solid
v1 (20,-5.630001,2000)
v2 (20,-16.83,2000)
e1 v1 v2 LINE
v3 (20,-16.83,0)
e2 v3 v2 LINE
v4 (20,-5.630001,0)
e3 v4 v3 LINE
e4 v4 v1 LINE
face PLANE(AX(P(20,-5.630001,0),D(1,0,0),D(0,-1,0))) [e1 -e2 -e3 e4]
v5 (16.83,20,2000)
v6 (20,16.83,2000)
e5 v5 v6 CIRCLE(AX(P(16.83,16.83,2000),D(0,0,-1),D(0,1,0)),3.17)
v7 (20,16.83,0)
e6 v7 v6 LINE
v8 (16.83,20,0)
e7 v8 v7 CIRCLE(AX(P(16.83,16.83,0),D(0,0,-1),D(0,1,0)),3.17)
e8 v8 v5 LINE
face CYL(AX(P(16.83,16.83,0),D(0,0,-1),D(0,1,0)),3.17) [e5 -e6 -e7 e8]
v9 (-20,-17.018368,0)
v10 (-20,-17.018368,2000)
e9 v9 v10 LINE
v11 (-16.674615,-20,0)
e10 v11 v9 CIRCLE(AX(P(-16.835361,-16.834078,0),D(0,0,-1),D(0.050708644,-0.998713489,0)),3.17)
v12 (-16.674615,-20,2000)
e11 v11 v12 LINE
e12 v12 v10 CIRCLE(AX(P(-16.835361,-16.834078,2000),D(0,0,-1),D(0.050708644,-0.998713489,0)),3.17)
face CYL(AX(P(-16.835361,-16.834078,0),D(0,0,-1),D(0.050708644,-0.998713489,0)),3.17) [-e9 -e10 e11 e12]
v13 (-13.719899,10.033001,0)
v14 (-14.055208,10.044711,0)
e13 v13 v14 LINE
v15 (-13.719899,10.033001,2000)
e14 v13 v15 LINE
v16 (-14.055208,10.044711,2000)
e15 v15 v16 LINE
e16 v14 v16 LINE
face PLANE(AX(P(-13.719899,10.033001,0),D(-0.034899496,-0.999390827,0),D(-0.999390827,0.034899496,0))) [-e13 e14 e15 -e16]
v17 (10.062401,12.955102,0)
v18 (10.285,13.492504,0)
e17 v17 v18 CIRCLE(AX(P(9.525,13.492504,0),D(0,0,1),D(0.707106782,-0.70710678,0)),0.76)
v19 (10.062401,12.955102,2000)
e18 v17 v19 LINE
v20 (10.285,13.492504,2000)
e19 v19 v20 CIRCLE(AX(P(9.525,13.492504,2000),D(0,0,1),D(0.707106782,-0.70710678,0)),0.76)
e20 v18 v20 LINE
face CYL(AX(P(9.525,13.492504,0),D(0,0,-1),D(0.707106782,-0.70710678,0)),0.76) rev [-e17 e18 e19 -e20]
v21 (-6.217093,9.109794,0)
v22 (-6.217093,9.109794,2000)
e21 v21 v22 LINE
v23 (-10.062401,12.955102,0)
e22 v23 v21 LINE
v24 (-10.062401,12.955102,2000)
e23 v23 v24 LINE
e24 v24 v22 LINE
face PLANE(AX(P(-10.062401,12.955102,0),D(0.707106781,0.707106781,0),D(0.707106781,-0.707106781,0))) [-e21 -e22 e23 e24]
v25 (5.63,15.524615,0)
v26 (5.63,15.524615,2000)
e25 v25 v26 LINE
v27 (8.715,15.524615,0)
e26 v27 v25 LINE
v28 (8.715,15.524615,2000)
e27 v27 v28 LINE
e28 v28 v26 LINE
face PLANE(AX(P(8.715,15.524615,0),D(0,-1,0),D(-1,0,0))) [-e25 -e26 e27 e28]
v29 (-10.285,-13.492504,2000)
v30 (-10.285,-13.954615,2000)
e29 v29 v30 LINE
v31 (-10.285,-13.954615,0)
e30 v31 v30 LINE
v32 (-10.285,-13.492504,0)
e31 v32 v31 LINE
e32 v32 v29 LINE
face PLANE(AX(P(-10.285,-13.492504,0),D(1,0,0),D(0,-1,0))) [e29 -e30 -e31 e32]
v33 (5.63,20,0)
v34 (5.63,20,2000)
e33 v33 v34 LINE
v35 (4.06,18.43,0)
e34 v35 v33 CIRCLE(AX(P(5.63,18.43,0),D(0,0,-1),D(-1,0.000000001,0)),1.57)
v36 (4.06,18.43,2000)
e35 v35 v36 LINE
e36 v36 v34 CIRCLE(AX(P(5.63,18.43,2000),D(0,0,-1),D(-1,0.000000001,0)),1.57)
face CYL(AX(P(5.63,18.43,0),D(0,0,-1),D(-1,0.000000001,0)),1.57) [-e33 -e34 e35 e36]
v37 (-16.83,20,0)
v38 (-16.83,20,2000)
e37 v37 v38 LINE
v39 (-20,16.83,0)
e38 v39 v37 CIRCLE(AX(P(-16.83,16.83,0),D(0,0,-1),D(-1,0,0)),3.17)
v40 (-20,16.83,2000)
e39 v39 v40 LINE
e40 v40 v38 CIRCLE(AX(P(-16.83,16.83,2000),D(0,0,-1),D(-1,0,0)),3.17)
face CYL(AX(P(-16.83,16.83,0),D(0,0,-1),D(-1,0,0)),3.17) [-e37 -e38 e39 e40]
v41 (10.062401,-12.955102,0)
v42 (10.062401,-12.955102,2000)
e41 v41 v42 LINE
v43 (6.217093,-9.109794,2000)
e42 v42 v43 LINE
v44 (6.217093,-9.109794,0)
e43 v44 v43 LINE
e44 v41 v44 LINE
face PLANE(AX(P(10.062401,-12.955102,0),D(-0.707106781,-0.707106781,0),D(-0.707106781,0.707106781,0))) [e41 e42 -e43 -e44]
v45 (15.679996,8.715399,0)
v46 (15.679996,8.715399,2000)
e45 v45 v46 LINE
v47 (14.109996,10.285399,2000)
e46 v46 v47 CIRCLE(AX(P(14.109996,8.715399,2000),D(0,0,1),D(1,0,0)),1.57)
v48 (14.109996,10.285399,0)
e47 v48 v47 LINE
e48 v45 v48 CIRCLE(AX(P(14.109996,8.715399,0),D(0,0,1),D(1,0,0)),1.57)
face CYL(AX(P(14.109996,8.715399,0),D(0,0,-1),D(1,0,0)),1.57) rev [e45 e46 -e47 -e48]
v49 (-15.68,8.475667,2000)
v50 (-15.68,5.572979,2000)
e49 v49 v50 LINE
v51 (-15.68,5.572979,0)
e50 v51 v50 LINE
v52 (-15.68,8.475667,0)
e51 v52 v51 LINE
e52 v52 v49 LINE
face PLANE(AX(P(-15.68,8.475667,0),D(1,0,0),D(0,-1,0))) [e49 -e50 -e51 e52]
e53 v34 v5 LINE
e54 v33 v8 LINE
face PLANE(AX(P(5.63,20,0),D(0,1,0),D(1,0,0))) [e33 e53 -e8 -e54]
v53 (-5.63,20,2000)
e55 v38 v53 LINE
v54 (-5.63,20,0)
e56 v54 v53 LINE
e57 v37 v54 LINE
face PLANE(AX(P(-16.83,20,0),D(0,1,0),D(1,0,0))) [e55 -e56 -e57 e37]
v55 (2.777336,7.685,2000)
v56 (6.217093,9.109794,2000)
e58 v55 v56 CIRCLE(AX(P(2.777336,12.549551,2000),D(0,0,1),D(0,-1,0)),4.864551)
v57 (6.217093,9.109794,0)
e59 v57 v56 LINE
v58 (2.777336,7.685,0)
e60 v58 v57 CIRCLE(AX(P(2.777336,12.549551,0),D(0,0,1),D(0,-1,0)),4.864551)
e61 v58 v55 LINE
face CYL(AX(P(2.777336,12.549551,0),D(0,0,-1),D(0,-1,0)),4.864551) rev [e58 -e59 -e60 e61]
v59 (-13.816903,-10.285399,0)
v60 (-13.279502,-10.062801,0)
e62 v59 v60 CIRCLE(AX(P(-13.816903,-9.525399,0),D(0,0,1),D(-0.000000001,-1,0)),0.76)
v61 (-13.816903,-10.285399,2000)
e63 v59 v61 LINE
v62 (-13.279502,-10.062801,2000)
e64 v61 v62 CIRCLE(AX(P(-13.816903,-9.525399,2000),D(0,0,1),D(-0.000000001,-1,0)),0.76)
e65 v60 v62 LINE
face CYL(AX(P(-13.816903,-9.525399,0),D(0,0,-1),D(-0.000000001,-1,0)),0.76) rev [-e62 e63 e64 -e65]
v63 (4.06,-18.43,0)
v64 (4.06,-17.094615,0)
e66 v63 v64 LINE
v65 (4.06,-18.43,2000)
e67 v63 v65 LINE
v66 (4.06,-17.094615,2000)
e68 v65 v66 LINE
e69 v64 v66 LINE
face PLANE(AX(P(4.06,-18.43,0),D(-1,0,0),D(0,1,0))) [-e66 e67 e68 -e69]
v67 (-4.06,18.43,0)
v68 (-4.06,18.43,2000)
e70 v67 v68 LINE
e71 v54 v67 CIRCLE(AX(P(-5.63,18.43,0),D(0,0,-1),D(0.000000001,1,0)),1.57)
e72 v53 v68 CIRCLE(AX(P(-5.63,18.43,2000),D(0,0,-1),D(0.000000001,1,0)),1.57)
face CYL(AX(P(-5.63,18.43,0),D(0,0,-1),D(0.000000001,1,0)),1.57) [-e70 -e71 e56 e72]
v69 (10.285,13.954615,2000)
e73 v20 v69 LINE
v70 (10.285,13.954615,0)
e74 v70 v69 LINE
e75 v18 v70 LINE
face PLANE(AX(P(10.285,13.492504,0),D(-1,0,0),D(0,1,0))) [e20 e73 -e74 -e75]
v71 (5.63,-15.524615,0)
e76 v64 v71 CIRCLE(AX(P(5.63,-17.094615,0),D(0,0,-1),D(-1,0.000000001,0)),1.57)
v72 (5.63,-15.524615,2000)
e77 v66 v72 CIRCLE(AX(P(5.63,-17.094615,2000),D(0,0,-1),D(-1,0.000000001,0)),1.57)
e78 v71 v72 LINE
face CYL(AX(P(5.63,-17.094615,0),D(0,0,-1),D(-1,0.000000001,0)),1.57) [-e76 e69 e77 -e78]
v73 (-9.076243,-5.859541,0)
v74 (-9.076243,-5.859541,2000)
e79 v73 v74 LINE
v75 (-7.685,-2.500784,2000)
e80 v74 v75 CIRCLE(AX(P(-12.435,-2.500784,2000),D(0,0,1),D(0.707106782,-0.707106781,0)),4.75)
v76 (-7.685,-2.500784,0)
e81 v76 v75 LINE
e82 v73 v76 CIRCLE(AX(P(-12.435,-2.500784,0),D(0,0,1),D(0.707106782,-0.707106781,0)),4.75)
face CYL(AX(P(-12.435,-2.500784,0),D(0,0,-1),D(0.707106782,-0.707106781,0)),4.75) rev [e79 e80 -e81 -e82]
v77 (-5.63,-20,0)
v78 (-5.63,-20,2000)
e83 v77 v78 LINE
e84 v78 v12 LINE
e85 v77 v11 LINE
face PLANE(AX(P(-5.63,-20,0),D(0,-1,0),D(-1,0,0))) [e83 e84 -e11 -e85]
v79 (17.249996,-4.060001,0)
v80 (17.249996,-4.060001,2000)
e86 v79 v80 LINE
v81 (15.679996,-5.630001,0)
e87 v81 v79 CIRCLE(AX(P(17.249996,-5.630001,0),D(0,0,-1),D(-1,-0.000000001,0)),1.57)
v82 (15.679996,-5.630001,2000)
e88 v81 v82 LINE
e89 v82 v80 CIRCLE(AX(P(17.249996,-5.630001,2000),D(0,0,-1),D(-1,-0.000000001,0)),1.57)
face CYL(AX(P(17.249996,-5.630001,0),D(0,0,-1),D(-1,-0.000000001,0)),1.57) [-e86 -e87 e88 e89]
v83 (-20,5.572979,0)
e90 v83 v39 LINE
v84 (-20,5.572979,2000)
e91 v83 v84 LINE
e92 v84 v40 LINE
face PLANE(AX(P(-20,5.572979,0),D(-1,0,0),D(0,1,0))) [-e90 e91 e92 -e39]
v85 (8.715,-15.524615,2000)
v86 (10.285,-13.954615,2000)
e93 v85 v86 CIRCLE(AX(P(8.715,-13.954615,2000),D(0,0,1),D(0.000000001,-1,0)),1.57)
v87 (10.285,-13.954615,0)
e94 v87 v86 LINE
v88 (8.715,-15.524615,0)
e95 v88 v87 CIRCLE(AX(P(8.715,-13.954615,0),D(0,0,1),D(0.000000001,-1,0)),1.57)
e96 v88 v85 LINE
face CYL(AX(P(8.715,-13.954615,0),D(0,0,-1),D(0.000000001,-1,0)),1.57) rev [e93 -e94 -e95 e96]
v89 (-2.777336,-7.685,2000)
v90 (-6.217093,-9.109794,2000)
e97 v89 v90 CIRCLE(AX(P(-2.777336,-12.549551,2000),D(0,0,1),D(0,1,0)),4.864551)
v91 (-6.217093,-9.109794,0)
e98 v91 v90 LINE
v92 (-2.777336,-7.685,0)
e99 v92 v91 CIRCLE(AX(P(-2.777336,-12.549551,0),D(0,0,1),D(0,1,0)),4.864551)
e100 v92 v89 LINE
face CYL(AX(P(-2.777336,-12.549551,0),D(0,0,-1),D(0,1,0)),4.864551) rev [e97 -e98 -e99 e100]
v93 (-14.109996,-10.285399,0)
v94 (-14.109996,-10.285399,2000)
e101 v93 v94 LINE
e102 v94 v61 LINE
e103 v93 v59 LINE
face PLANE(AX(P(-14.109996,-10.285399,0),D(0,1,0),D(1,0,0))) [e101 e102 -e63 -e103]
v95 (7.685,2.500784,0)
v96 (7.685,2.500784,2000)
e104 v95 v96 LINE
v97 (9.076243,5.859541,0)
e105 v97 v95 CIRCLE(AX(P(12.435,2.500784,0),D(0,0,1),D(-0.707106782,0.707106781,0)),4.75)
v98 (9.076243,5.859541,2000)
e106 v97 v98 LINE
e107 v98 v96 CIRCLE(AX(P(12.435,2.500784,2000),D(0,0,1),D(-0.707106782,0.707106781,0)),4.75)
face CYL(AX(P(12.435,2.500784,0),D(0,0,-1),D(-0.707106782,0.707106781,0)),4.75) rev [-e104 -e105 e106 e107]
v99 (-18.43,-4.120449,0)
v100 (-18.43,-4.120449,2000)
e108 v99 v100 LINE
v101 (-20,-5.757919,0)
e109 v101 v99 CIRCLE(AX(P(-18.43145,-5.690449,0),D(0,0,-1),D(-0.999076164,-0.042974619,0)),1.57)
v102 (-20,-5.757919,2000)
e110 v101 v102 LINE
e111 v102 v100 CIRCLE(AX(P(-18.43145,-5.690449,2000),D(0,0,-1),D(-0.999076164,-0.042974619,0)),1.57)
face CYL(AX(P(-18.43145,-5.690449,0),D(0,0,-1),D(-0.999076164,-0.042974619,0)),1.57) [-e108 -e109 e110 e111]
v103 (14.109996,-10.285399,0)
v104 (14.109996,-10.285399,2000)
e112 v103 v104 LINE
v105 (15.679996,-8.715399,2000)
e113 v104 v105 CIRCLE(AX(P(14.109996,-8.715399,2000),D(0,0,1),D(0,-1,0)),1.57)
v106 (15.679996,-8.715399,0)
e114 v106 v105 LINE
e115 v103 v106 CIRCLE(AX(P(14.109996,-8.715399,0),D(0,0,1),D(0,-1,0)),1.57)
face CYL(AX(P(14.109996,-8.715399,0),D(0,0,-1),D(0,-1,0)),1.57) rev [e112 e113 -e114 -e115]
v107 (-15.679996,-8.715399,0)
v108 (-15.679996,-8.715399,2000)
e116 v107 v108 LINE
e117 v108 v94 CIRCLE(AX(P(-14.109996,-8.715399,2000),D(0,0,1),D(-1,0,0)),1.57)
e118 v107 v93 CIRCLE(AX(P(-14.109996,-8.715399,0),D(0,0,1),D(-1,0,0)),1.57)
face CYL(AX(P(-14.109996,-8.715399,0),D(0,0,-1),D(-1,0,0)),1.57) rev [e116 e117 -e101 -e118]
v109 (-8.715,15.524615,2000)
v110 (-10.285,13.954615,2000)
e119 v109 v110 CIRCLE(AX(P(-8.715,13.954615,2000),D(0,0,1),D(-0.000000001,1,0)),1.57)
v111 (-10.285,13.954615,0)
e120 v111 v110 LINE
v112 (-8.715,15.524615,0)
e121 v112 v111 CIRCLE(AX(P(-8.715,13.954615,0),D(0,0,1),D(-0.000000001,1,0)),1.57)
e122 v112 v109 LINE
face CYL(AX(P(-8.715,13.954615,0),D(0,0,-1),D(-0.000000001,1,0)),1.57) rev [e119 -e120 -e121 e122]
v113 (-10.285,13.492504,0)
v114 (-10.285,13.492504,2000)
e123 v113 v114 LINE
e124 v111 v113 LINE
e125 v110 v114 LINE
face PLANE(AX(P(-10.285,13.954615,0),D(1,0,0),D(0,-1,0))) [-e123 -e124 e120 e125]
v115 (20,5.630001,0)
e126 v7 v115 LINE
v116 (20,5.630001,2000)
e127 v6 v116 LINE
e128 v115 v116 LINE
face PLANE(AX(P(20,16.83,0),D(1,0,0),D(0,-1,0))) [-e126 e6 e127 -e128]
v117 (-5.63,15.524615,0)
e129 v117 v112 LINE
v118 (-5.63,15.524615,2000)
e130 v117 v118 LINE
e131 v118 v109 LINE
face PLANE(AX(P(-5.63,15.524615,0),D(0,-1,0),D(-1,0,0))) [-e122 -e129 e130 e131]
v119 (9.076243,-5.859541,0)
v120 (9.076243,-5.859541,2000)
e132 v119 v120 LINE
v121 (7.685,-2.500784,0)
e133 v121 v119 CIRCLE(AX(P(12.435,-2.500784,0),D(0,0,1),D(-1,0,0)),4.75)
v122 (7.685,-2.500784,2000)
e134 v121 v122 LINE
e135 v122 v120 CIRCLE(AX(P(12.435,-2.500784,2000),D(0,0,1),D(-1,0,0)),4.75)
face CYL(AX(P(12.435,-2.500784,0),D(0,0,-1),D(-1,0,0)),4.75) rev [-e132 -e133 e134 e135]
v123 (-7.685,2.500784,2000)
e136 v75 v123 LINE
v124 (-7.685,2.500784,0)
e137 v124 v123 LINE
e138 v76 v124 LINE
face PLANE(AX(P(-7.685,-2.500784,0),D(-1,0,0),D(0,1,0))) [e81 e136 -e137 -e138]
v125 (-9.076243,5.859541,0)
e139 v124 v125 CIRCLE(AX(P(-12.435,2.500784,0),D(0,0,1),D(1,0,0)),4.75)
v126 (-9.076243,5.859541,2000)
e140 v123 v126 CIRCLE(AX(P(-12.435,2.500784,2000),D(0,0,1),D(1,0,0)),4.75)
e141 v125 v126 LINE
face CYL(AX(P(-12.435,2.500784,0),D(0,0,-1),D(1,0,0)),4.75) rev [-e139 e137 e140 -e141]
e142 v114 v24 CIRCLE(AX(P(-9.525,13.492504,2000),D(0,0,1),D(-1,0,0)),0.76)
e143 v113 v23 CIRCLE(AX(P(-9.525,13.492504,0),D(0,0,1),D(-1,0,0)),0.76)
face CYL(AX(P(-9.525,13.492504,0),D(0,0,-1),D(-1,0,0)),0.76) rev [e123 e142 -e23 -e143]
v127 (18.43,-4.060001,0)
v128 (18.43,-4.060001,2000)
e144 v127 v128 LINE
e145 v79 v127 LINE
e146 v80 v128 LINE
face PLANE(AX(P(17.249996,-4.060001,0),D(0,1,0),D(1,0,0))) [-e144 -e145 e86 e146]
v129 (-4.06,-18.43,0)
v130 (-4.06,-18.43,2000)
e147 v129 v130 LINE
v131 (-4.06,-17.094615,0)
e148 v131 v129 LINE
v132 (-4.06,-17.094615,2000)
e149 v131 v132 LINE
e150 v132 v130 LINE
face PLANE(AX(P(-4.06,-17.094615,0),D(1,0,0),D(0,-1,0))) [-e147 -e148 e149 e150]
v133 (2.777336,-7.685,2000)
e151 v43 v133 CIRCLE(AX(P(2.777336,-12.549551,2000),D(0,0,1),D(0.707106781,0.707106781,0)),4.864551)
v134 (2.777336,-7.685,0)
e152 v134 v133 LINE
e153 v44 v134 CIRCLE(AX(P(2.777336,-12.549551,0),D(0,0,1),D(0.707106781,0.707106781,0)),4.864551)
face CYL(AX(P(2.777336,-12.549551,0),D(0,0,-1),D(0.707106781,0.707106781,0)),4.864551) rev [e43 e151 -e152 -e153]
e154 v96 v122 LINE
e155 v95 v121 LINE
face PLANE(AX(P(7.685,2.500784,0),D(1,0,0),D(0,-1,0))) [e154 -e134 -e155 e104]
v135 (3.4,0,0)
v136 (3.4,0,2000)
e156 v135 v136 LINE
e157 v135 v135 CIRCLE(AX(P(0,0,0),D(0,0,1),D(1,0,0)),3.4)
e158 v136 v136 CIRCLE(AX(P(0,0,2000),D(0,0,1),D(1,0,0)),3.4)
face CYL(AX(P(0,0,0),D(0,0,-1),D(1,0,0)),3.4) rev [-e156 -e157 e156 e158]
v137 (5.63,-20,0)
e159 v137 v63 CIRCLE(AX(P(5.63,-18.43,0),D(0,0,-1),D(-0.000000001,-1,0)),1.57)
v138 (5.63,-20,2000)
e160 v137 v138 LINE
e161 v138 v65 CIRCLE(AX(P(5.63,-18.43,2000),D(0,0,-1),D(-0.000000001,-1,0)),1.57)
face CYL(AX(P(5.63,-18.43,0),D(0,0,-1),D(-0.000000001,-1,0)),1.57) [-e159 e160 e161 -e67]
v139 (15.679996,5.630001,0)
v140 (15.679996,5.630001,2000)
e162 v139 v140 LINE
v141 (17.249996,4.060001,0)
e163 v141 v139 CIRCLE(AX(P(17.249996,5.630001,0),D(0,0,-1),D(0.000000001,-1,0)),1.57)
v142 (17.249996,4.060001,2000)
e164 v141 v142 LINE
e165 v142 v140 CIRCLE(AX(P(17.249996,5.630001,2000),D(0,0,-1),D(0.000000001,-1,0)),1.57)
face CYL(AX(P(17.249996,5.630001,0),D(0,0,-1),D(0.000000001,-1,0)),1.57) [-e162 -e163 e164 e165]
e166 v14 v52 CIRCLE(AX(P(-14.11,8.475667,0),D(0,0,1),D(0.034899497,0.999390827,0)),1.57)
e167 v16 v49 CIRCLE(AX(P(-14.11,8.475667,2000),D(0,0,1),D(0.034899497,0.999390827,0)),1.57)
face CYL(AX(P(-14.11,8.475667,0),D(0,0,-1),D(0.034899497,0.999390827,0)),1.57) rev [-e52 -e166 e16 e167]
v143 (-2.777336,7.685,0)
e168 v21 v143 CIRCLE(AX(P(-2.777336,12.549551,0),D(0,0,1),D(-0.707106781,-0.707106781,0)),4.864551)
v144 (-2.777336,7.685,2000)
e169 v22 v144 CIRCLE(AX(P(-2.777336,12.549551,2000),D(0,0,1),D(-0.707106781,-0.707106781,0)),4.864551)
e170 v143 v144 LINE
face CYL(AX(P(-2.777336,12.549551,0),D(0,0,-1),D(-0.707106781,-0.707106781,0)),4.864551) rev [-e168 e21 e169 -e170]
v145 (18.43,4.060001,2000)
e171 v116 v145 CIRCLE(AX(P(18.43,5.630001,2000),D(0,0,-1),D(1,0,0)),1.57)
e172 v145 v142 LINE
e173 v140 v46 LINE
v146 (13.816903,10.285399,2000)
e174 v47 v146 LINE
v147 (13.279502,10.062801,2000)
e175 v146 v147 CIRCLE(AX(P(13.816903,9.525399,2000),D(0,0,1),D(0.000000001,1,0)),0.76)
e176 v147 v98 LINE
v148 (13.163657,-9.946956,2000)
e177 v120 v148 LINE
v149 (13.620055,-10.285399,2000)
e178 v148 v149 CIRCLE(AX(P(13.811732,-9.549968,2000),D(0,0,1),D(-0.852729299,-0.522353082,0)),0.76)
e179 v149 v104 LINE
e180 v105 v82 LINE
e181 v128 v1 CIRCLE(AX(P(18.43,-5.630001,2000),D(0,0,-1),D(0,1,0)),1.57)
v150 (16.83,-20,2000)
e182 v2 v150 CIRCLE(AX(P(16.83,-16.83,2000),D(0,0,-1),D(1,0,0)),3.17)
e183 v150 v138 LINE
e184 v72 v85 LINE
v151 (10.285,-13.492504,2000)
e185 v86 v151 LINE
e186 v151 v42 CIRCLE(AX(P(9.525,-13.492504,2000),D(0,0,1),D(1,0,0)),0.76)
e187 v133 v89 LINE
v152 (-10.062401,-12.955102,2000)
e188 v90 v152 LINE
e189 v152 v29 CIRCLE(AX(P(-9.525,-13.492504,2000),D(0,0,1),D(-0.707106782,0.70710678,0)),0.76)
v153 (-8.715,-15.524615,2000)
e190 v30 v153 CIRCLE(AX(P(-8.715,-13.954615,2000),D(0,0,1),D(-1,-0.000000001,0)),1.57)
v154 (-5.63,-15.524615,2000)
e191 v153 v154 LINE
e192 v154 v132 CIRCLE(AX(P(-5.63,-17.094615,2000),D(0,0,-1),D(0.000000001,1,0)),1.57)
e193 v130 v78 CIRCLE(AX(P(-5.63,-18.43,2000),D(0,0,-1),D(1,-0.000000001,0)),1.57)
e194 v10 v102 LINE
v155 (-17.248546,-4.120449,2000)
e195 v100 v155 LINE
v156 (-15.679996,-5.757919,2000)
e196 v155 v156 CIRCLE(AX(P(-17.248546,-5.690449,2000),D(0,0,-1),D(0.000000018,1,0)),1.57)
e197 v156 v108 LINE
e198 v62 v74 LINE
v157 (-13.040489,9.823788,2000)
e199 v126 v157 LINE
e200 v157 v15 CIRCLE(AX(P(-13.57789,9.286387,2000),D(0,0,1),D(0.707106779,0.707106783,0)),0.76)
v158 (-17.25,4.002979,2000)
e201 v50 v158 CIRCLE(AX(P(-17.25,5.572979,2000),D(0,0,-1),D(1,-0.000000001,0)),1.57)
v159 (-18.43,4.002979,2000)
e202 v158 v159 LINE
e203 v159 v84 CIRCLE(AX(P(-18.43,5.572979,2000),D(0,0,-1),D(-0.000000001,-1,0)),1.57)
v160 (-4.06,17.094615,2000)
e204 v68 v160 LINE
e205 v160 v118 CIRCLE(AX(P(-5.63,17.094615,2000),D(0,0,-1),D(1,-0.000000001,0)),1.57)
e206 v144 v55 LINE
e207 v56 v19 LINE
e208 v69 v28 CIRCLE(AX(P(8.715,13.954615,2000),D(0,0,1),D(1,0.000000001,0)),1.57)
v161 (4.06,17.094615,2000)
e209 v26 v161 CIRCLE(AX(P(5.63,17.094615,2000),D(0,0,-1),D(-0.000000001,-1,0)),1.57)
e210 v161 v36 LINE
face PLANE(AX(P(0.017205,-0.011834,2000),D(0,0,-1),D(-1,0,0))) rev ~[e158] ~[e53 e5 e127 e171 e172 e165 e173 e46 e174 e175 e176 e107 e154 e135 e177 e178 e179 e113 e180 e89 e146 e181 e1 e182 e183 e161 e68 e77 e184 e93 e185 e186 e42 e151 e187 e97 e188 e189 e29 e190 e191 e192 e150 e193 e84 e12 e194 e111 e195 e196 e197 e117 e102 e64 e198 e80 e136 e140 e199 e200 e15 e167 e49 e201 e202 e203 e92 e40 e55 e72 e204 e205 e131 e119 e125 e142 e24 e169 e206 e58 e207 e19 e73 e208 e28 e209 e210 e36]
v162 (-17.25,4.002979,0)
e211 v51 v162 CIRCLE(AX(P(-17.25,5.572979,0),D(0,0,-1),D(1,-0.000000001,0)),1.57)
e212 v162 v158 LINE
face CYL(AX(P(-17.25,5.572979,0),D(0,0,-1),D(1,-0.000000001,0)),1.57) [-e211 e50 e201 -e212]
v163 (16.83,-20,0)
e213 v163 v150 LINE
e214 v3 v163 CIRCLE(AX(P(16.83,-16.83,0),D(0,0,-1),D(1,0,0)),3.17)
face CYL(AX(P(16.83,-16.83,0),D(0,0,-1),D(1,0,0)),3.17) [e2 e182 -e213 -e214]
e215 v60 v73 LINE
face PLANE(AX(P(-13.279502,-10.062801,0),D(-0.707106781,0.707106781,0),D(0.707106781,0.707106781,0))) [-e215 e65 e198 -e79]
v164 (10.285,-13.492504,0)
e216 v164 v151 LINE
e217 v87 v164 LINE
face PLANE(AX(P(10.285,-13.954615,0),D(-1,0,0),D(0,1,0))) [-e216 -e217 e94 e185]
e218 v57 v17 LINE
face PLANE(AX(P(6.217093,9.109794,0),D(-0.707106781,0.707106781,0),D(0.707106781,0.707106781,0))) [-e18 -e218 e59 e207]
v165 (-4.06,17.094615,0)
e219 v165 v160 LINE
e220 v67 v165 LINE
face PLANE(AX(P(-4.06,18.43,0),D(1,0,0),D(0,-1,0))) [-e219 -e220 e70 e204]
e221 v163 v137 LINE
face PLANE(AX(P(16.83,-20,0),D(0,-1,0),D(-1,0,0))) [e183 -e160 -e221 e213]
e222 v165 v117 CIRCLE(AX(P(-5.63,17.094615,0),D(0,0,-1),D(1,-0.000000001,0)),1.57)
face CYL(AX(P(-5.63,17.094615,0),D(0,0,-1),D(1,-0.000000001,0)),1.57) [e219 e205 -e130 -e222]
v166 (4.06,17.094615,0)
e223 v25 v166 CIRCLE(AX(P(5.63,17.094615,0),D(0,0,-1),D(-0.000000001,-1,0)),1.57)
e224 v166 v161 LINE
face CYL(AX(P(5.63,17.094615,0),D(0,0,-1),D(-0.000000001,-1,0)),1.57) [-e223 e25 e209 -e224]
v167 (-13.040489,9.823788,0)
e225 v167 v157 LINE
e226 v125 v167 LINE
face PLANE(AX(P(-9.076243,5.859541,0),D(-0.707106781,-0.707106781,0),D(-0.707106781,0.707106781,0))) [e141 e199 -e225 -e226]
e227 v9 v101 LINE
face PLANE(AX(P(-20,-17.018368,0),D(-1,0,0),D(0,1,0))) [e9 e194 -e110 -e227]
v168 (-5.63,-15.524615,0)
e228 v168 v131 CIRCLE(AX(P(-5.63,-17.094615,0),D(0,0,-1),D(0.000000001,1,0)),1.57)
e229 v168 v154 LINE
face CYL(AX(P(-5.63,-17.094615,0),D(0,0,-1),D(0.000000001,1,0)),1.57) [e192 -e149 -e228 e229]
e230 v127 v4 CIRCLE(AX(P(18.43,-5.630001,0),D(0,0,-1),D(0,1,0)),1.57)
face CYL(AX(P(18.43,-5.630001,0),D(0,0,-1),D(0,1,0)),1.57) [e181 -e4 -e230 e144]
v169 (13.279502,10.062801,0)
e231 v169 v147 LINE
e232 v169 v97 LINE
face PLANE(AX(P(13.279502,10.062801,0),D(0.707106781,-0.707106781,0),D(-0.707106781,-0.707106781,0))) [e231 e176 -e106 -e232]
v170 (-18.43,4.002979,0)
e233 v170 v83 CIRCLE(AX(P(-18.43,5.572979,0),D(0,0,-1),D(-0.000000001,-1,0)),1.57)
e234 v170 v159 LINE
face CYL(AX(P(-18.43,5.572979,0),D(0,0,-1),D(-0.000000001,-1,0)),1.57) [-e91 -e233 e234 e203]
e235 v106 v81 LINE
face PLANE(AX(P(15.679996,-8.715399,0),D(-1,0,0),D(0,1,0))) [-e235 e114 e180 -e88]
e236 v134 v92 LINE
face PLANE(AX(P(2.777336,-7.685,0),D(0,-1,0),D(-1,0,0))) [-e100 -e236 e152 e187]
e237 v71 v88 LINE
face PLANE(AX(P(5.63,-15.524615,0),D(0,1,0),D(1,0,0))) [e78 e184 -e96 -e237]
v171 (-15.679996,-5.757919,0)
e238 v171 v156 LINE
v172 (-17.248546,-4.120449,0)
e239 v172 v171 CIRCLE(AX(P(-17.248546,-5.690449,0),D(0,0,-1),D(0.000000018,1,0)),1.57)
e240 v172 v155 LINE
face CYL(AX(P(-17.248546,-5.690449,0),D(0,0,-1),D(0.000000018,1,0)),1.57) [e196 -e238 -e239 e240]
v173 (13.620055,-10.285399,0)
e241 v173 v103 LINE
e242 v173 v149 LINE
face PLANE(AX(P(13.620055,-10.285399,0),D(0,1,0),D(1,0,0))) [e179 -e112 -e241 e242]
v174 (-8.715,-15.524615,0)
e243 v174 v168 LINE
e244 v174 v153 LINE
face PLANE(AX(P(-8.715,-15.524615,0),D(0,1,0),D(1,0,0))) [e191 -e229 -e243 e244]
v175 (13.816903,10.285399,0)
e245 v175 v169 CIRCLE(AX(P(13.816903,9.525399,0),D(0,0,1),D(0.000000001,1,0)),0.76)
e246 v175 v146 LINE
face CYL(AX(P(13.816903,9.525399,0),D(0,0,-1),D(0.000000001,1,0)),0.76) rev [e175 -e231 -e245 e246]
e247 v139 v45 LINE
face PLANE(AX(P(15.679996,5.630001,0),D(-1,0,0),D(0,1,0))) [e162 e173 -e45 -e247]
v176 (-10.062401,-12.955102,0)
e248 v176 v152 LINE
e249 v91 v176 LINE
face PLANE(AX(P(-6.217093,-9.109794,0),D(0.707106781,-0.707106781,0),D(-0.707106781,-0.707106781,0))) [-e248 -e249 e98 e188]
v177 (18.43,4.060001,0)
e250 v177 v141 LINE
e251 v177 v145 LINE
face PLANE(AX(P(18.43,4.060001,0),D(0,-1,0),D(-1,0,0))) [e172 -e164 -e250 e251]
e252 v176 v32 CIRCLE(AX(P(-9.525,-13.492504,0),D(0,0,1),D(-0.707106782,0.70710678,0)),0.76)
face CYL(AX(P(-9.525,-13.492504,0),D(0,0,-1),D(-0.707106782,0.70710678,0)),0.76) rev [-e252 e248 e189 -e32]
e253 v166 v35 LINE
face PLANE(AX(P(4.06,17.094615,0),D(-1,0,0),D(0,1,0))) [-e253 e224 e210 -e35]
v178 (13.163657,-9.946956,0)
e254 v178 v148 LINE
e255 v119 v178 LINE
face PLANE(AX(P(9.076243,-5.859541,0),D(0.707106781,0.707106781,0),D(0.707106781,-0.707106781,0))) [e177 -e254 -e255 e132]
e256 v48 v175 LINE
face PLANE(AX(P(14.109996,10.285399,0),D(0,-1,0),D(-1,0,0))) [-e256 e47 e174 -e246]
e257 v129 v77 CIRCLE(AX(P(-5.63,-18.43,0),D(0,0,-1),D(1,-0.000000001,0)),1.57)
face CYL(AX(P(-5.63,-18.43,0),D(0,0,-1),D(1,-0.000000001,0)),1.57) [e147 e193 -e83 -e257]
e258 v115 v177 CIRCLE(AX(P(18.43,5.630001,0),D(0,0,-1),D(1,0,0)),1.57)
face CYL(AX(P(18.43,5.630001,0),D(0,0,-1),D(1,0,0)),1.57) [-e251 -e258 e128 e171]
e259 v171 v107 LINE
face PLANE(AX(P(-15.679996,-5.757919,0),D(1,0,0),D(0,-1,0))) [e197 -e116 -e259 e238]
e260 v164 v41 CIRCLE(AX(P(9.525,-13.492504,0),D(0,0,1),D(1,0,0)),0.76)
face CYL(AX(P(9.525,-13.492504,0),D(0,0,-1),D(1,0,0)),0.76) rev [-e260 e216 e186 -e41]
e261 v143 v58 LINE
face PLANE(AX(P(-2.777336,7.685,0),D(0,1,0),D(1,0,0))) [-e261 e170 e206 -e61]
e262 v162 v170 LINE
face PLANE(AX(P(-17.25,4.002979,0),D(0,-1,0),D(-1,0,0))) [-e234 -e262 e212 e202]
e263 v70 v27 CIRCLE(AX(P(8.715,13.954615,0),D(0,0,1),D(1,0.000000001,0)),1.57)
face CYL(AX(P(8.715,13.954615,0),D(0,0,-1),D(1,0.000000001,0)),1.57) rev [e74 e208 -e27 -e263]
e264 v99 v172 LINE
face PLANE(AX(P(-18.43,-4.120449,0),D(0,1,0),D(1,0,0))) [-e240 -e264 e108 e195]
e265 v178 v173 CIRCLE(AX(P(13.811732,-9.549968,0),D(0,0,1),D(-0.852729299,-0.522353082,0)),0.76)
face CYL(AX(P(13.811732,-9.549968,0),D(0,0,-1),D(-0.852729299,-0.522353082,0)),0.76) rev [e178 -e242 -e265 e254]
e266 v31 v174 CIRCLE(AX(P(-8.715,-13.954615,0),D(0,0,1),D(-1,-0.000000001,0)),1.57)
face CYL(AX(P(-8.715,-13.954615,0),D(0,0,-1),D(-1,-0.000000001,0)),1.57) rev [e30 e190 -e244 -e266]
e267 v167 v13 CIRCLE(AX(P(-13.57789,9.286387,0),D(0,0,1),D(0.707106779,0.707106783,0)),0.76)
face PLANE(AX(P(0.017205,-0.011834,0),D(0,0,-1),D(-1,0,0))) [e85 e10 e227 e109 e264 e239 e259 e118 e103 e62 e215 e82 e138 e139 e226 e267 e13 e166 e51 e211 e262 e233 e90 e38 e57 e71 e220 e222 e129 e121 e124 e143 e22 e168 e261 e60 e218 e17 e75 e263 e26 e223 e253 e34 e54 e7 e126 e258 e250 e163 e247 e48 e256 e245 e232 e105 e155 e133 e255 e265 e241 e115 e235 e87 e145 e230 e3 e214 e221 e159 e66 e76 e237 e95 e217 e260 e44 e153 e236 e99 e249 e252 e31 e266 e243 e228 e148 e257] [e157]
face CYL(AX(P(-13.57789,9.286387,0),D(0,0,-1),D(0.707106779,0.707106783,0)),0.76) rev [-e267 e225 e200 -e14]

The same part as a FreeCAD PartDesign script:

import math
import FreeCAD as App
import Part
import Sketcher
Q = App.Units.Quantity

doc = App.newDocument("Part")
body = doc.addObject("PartDesign::Body", "Body")

sketch1 = doc.addObject("Sketcher::SketchObject", "Sketch")
body.addObject(sketch1)
sketch1.AttachmentSupport = (doc.XY_Plane, [""])
sketch1.MapMode = "FlatFace"
sketch1.addGeometry([
    Part.LineSegment(App.Vector(-5.63, -15.52, 0), App.Vector(-8.71, -15.52, 0)),
    Part.ArcOfCircle(Part.Circle(App.Vector(-8.71, -13.95, 0), App.Vector(0, 0, 1), 1.57), math.radians(-180), math.radians(-90)),
    Part.LineSegment(App.Vector(-10.29, -13.95, 0), App.Vector(-10.29, -13.49, 0)),
    Part.ArcOfCircle(Part.Circle(App.Vector(-9.52, -13.49, 0), App.Vector(0, 0, 1), 0.76), math.radians(135), math.radians(180)),
    Part.LineSegment(App.Vector(-10.06, -12.96, 0), App.Vector(-6.22, -9.11, 0)),
    Part.ArcOfCircle(Part.Circle(App.Vector(-2.78, -12.55, 0), App.Vector(0, 0, 1), 4.86), math.radians(90), math.radians(135)),
    Part.LineSegment(App.Vector(-2.78, -7.68, 0), App.Vector(2.78, -7.68, 0)),
    Part.ArcOfCircle(Part.Circle(App.Vector(2.78, -12.55, 0), App.Vector(0, 0, 1), 4.86), math.radians(45), math.radians(90)),
    Part.LineSegment(App.Vector(6.22, -9.11, 0), App.Vector(10.06, -12.96, 0)),
    Part.ArcOfCircle(Part.Circle(App.Vector(9.52, -13.49, 0), App.Vector(0, 0, 1), 0.76), math.radians(0), math.radians(45)),
    Part.LineSegment(App.Vector(10.29, -13.49, 0), App.Vector(10.29, -13.95, 0)),
    Part.ArcOfCircle(Part.Circle(App.Vector(8.71, -13.95, 0), App.Vector(0, 0, 1), 1.57), math.radians(-90), math.radians(0)),
    Part.LineSegment(App.Vector(8.71, -15.52, 0), App.Vector(5.63, -15.52, 0)),
    Part.ArcOfCircle(Part.Circle(App.Vector(5.63, -17.09, 0), App.Vector(0, 0, 1), 1.57), math.radians(90), math.radians(180)),
    Part.LineSegment(App.Vector(4.06, -17.09, 0), App.Vector(4.06, -18.43, 0)),
    Part.ArcOfCircle(Part.Circle(App.Vector(5.63, -18.43, 0), App.Vector(0, 0, 1), 1.57), math.radians(-180), math.radians(-90)),
    Part.LineSegment(App.Vector(5.63, -20, 0), App.Vector(16.83, -20, 0)),
    Part.ArcOfCircle(Part.Circle(App.Vector(16.83, -16.83, 0), App.Vector(0, 0, 1), 3.17), math.radians(-90), math.radians(0)),
    Part.LineSegment(App.Vector(20, -16.83, 0), App.Vector(20, -5.63, 0)),
    Part.ArcOfCircle(Part.Circle(App.Vector(18.43, -5.63, 0), App.Vector(0, 0, 1), 1.57), math.radians(0), math.radians(90)),
    Part.LineSegment(App.Vector(18.43, -4.06, 0), App.Vector(17.25, -4.06, 0)),
    Part.ArcOfCircle(Part.Circle(App.Vector(17.25, -5.63, 0), App.Vector(0, 0, 1), 1.57), math.radians(90), math.radians(180)),
    Part.LineSegment(App.Vector(15.68, -5.63, 0), App.Vector(15.68, -8.72, 0)),
    Part.ArcOfCircle(Part.Circle(App.Vector(14.11, -8.72, 0), App.Vector(0, 0, 1), 1.57), math.radians(-90), math.radians(0)),
    Part.LineSegment(App.Vector(14.11, -10.29, 0), App.Vector(13.62, -10.29, 0)),
    Part.ArcOfCircle(Part.Circle(App.Vector(13.81, -9.55, 0), App.Vector(0, 0, 1), 0.76), math.radians(-149), math.radians(-105)),
    Part.LineSegment(App.Vector(13.16, -9.95, 0), App.Vector(9.08, -5.86, 0)),
    Part.ArcOfCircle(Part.Circle(App.Vector(12.44, -2.5, 0), App.Vector(0, 0, 1), 4.75), math.radians(-180), math.radians(-135)),
    Part.LineSegment(App.Vector(7.68, -2.5, 0), App.Vector(7.68, 2.5, 0)),
    Part.ArcOfCircle(Part.Circle(App.Vector(12.44, 2.5, 0), App.Vector(0, 0, 1), 4.75), math.radians(135), math.radians(180)),
    Part.LineSegment(App.Vector(9.08, 5.86, 0), App.Vector(13.28, 10.06, 0)),
    Part.ArcOfCircle(Part.Circle(App.Vector(13.82, 9.53, 0), App.Vector(0, 0, 1), 0.76), math.radians(90), math.radians(135)),
    Part.LineSegment(App.Vector(13.82, 10.29, 0), App.Vector(14.11, 10.29, 0)),
    Part.ArcOfCircle(Part.Circle(App.Vector(14.11, 8.72, 0), App.Vector(0, 0, 1), 1.57), math.radians(0), math.radians(90)),
    Part.LineSegment(App.Vector(15.68, 8.72, 0), App.Vector(15.68, 5.63, 0)),
    Part.ArcOfCircle(Part.Circle(App.Vector(17.25, 5.63, 0), App.Vector(0, 0, 1), 1.57), math.radians(180), math.radians(270)),
    Part.LineSegment(App.Vector(17.25, 4.06, 0), App.Vector(18.43, 4.06, 0)),
    Part.ArcOfCircle(Part.Circle(App.Vector(18.43, 5.63, 0), App.Vector(0, 0, 1), 1.57), math.radians(-90), math.radians(0)),
    Part.LineSegment(App.Vector(20, 5.63, 0), App.Vector(20, 16.83, 0)),
    Part.ArcOfCircle(Part.Circle(App.Vector(16.83, 16.83, 0), App.Vector(0, 0, 1), 3.17), math.radians(0), math.radians(90)),
    Part.LineSegment(App.Vector(16.83, 20, 0), App.Vector(5.63, 20, 0)),
    Part.ArcOfCircle(Part.Circle(App.Vector(5.63, 18.43, 0), App.Vector(0, 0, 1), 1.57), math.radians(90), math.radians(180)),
    Part.LineSegment(App.Vector(4.06, 18.43, 0), App.Vector(4.06, 17.09, 0)),
    Part.ArcOfCircle(Part.Circle(App.Vector(5.63, 17.09, 0), App.Vector(0, 0, 1), 1.57), math.radians(-180), math.radians(-90)),
    Part.LineSegment(App.Vector(5.63, 15.52, 0), App.Vector(8.71, 15.52, 0)),
    Part.ArcOfCircle(Part.Circle(App.Vector(8.71, 13.95, 0), App.Vector(0, 0, 1), 1.57), math.radians(0), math.radians(90)),
    Part.LineSegment(App.Vector(10.29, 13.95, 0), App.Vector(10.29, 13.49, 0)),
    Part.ArcOfCircle(Part.Circle(App.Vector(9.52, 13.49, 0), App.Vector(0, 0, 1), 0.76), math.radians(-45), math.radians(0)),
    Part.LineSegment(App.Vector(10.06, 12.96, 0), App.Vector(6.22, 9.11, 0)),
    Part.ArcOfCircle(Part.Circle(App.Vector(2.78, 12.55, 0), App.Vector(0, 0, 1), 4.86), math.radians(-90), math.radians(-45)),
    Part.LineSegment(App.Vector(2.78, 7.68, 0), App.Vector(-2.78, 7.68, 0)),
    Part.ArcOfCircle(Part.Circle(App.Vector(-2.78, 12.55, 0), App.Vector(0, 0, 1), 4.86), math.radians(-135), math.radians(-90)),
    Part.LineSegment(App.Vector(-6.22, 9.11, 0), App.Vector(-10.06, 12.96, 0)),
    Part.ArcOfCircle(Part.Circle(App.Vector(-9.52, 13.49, 0), App.Vector(0, 0, 1), 0.76), math.radians(180), math.radians(225)),
    Part.LineSegment(App.Vector(-10.29, 13.49, 0), App.Vector(-10.29, 13.95, 0)),
    Part.ArcOfCircle(Part.Circle(App.Vector(-8.71, 13.95, 0), App.Vector(0, 0, 1), 1.57), math.radians(90), math.radians(180)),
    Part.LineSegment(App.Vector(-8.71, 15.52, 0), App.Vector(-5.63, 15.52, 0)),
    Part.ArcOfCircle(Part.Circle(App.Vector(-5.63, 17.09, 0), App.Vector(0, 0, 1), 1.57), math.radians(-90), math.radians(0)),
    Part.LineSegment(App.Vector(-4.06, 17.09, 0), App.Vector(-4.06, 18.43, 0)),
    Part.ArcOfCircle(Part.Circle(App.Vector(-5.63, 18.43, 0), App.Vector(0, 0, 1), 1.57), math.radians(0), math.radians(90)),
    Part.LineSegment(App.Vector(-5.63, 20, 0), App.Vector(-16.83, 20, 0)),
    Part.ArcOfCircle(Part.Circle(App.Vector(-16.83, 16.83, 0), App.Vector(0, 0, 1), 3.17), math.radians(90), math.radians(180)),
    Part.LineSegment(App.Vector(-20, 16.83, 0), App.Vector(-20, 5.57, 0)),
    Part.ArcOfCircle(Part.Circle(App.Vector(-18.43, 5.57, 0), App.Vector(0, 0, 1), 1.57), math.radians(-180), math.radians(-90)),
    Part.LineSegment(App.Vector(-18.43, 4, 0), App.Vector(-17.25, 4, 0)),
    Part.ArcOfCircle(Part.Circle(App.Vector(-17.25, 5.57, 0), App.Vector(0, 0, 1), 1.57), math.radians(-90), math.radians(0)),
    Part.LineSegment(App.Vector(-15.68, 5.57, 0), App.Vector(-15.68, 8.48, 0)),
    Part.ArcOfCircle(Part.Circle(App.Vector(-14.11, 8.48, 0), App.Vector(0, 0, 1), 1.57), math.radians(88), math.radians(180)),
    Part.LineSegment(App.Vector(-14.06, 10.04, 0), App.Vector(-13.72, 10.03, 0)),
    Part.ArcOfCircle(Part.Circle(App.Vector(-13.58, 9.29, 0), App.Vector(0, 0, 1), 0.76), math.radians(45), math.radians(101)),
    Part.LineSegment(App.Vector(-13.04, 9.82, 0), App.Vector(-9.08, 5.86, 0)),
    Part.ArcOfCircle(Part.Circle(App.Vector(-12.44, 2.5, 0), App.Vector(0, 0, 1), 4.75), math.radians(0), math.radians(45)),
    Part.LineSegment(App.Vector(-7.68, 2.5, 0), App.Vector(-7.68, -2.5, 0)),
    Part.ArcOfCircle(Part.Circle(App.Vector(-12.44, -2.5, 0), App.Vector(0, 0, 1), 4.75), math.radians(-45), math.radians(0)),
    Part.LineSegment(App.Vector(-9.08, -5.86, 0), App.Vector(-13.28, -10.06, 0)),
    Part.ArcOfCircle(Part.Circle(App.Vector(-13.82, -9.53, 0), App.Vector(0, 0, 1), 0.76), math.radians(-90), math.radians(-45)),
    Part.LineSegment(App.Vector(-13.82, -10.29, 0), App.Vector(-14.11, -10.29, 0)),
    Part.ArcOfCircle(Part.Circle(App.Vector(-14.11, -8.72, 0), App.Vector(0, 0, 1), 1.57), math.radians(180), math.radians(270)),
    Part.LineSegment(App.Vector(-15.68, -8.72, 0), App.Vector(-15.68, -5.76, 0)),
    Part.ArcOfCircle(Part.Circle(App.Vector(-17.25, -5.69, 0), App.Vector(0, 0, 1), 1.57), math.radians(-2), math.radians(90)),
    Part.LineSegment(App.Vector(-17.25, -4.12, 0), App.Vector(-18.43, -4.12, 0)),
    Part.ArcOfCircle(Part.Circle(App.Vector(-18.43, -5.69, 0), App.Vector(0, 0, 1), 1.57), math.radians(90), math.radians(182)),
    Part.LineSegment(App.Vector(-20, -5.76, 0), App.Vector(-20, -17.02, 0)),
    Part.ArcOfCircle(Part.Circle(App.Vector(-16.84, -16.83, 0), App.Vector(0, 0, 1), 3.17), math.radians(-177), math.radians(-87)),
    Part.LineSegment(App.Vector(-16.67, -20, 0), App.Vector(-5.63, -20, 0)),
    Part.ArcOfCircle(Part.Circle(App.Vector(-5.63, -18.43, 0), App.Vector(0, 0, 1), 1.57), math.radians(-90), math.radians(0)),
    Part.LineSegment(App.Vector(-4.06, -18.43, 0), App.Vector(-4.06, -17.09, 0)),
    Part.ArcOfCircle(Part.Circle(App.Vector(-5.63, -17.09, 0), App.Vector(0, 0, 1), 1.57), math.radians(0), math.radians(90)),
    Part.Circle(App.Vector(0, 0, 0), App.Vector(0, 0, 1), 3.4),
], False)
sketch1.addConstraint([
    Sketcher.Constraint("Tangent", 0, 2, 1, 2),
    Sketcher.Constraint("Tangent", 1, 1, 2, 1),
    Sketcher.Constraint("Tangent", 2, 2, 3, 2),
    Sketcher.Constraint("Tangent", 3, 1, 4, 1),
    Sketcher.Constraint("Tangent", 4, 2, 5, 2),
    Sketcher.Constraint("Tangent", 5, 1, 6, 1),
    Sketcher.Constraint("Tangent", 6, 2, 7, 2),
    Sketcher.Constraint("Tangent", 7, 1, 8, 1),
    Sketcher.Constraint("Tangent", 8, 2, 9, 2),
    Sketcher.Constraint("Tangent", 9, 1, 10, 1),
    Sketcher.Constraint("Tangent", 10, 2, 11, 2),
    Sketcher.Constraint("Tangent", 11, 1, 12, 1),
    Sketcher.Constraint("Tangent", 12, 2, 13, 1),
    Sketcher.Constraint("Tangent", 13, 2, 14, 1),
    Sketcher.Constraint("Tangent", 14, 2, 15, 1),
    Sketcher.Constraint("Tangent", 15, 2, 16, 1),
    Sketcher.Constraint("Tangent", 16, 2, 17, 1),
    Sketcher.Constraint("Tangent", 17, 2, 18, 1),
    Sketcher.Constraint("Tangent", 18, 2, 19, 1),
    Sketcher.Constraint("Tangent", 19, 2, 20, 1),
    Sketcher.Constraint("Tangent", 20, 2, 21, 1),
    Sketcher.Constraint("Tangent", 21, 2, 22, 1),
    Sketcher.Constraint("Tangent", 22, 2, 23, 2),
    Sketcher.Constraint("Tangent", 23, 1, 24, 1),
    Sketcher.Constraint("Coincident", 24, 2, 25, 2),
    Sketcher.Constraint("Coincident", 25, 1, 26, 1),
    Sketcher.Constraint("Tangent", 26, 2, 27, 2),
    Sketcher.Constraint("Tangent", 27, 1, 28, 1),
    Sketcher.Constraint("Tangent", 28, 2, 29, 2),
    Sketcher.Constraint("Tangent", 29, 1, 30, 1),
    Sketcher.Constraint("Tangent", 30, 2, 31, 2),
    Sketcher.Constraint("Tangent", 31, 1, 32, 1),
    Sketcher.Constraint("Tangent", 32, 2, 33, 2),
    Sketcher.Constraint("Tangent", 33, 1, 34, 1),
    Sketcher.Constraint("Tangent", 34, 2, 35, 1),
    Sketcher.Constraint("Tangent", 35, 2, 36, 1),
    Sketcher.Constraint("Tangent", 36, 2, 37, 1),
    Sketcher.Constraint("Tangent", 37, 2, 38, 1),
    Sketcher.Constraint("Tangent", 38, 2, 39, 1),
    Sketcher.Constraint("Tangent", 39, 2, 40, 1),
    Sketcher.Constraint("Tangent", 40, 2, 41, 1),
    Sketcher.Constraint("Tangent", 41, 2, 42, 1),
    Sketcher.Constraint("Tangent", 42, 2, 43, 1),
    Sketcher.Constraint("Tangent", 43, 2, 44, 1),
    Sketcher.Constraint("Tangent", 44, 2, 45, 2),
    Sketcher.Constraint("Tangent", 45, 1, 46, 1),
    Sketcher.Constraint("Tangent", 46, 2, 47, 2),
    Sketcher.Constraint("Tangent", 47, 1, 48, 1),
    Sketcher.Constraint("Tangent", 48, 2, 49, 2),
    Sketcher.Constraint("Tangent", 49, 1, 50, 1),
    Sketcher.Constraint("Tangent", 50, 2, 51, 2),
    Sketcher.Constraint("Tangent", 51, 1, 52, 1),
    Sketcher.Constraint("Tangent", 52, 2, 53, 2),
    Sketcher.Constraint("Tangent", 53, 1, 54, 1),
    Sketcher.Constraint("Tangent", 54, 2, 55, 2),
    Sketcher.Constraint("Tangent", 55, 1, 56, 1),
    Sketcher.Constraint("Tangent", 56, 2, 57, 1),
    Sketcher.Constraint("Tangent", 57, 2, 58, 1),
    Sketcher.Constraint("Tangent", 58, 2, 59, 1),
    Sketcher.Constraint("Tangent", 59, 2, 60, 1),
    Sketcher.Constraint("Tangent", 60, 2, 61, 1),
    Sketcher.Constraint("Tangent", 61, 2, 62, 1),
    Sketcher.Constraint("Tangent", 62, 2, 63, 1),
    Sketcher.Constraint("Tangent", 63, 2, 64, 1),
    Sketcher.Constraint("Tangent", 64, 2, 65, 1),
    Sketcher.Constraint("Tangent", 65, 2, 66, 1),
    Sketcher.Constraint("Tangent", 66, 2, 67, 2),
    Sketcher.Constraint("Tangent", 67, 1, 68, 1),
    Sketcher.Constraint("Coincident", 68, 2, 69, 2),
    Sketcher.Constraint("Tangent", 69, 1, 70, 1),
    Sketcher.Constraint("Tangent", 70, 2, 71, 2),
    Sketcher.Constraint("Tangent", 71, 1, 72, 1),
    Sketcher.Constraint("Tangent", 72, 2, 73, 2),
    Sketcher.Constraint("Tangent", 73, 1, 74, 1),
    Sketcher.Constraint("Tangent", 74, 2, 75, 2),
    Sketcher.Constraint("Tangent", 75, 1, 76, 1),
    Sketcher.Constraint("Tangent", 76, 2, 77, 2),
    Sketcher.Constraint("Tangent", 77, 1, 78, 1),
    Sketcher.Constraint("Coincident", 78, 2, 79, 1),
    Sketcher.Constraint("Tangent", 79, 2, 80, 1),
    Sketcher.Constraint("Coincident", 80, 2, 81, 1),
    Sketcher.Constraint("Coincident", 81, 2, 82, 1),
    Sketcher.Constraint("Coincident", 82, 2, 83, 1),
    Sketcher.Constraint("Coincident", 83, 2, 84, 1),
    Sketcher.Constraint("Tangent", 84, 2, 85, 1),
    Sketcher.Constraint("Tangent", 85, 2, 86, 1),
    Sketcher.Constraint("Tangent", 86, 2, 87, 1),
    Sketcher.Constraint("Tangent", 87, 2, 0, 1),
    Sketcher.Constraint("Horizontal", 0),
    Sketcher.Constraint("Vertical", 2),
    Sketcher.Constraint("Horizontal", 6),
    Sketcher.Constraint("Vertical", 10),
    Sketcher.Constraint("Horizontal", 12),
    Sketcher.Constraint("Vertical", 14),
    Sketcher.Constraint("Horizontal", 16),
    Sketcher.Constraint("Vertical", 18),
    Sketcher.Constraint("Horizontal", 20),
    Sketcher.Constraint("Vertical", 22),
    Sketcher.Constraint("Horizontal", 24),
    Sketcher.Constraint("Vertical", 28),
    Sketcher.Constraint("Horizontal", 32),
    Sketcher.Constraint("Vertical", 34),
    Sketcher.Constraint("Horizontal", 36),
    Sketcher.Constraint("Vertical", 38),
    Sketcher.Constraint("Horizontal", 40),
    Sketcher.Constraint("Vertical", 42),
    Sketcher.Constraint("Horizontal", 44),
    Sketcher.Constraint("Vertical", 46),
    Sketcher.Constraint("Horizontal", 50),
    Sketcher.Constraint("Vertical", 54),
    Sketcher.Constraint("Horizontal", 56),
    Sketcher.Constraint("Vertical", 58),
    Sketcher.Constraint("Horizontal", 60),
    Sketcher.Constraint("Vertical", 62),
    Sketcher.Constraint("Horizontal", 64),
    Sketcher.Constraint("Vertical", 66),
    Sketcher.Constraint("Vertical", 72),
    Sketcher.Constraint("Horizontal", 76),
    Sketcher.Constraint("Vertical", 78),
    Sketcher.Constraint("Horizontal", 80),
    Sketcher.Constraint("Vertical", 82),
    Sketcher.Constraint("Horizontal", 84),
    Sketcher.Constraint("Vertical", 86),
    Sketcher.Constraint("Coincident", 88, 3, -1, 1),
    Sketcher.Constraint("Equal", 5, 7),
    Sketcher.Constraint("Equal", 3, 9),
    Sketcher.Constraint("Equal", 1, 11),
    Sketcher.Constraint("Equal", 11, 13),
    Sketcher.Constraint("Equal", 13, 15),
    Sketcher.Constraint("Equal", 15, 19),
    Sketcher.Constraint("Equal", 19, 21),
    Sketcher.Constraint("Equal", 21, 23),
    Sketcher.Constraint("Equal", 9, 25),
    Sketcher.Constraint("Equal", 27, 29),
    Sketcher.Constraint("Equal", 25, 31),
    Sketcher.Constraint("Equal", 23, 33),
    Sketcher.Constraint("Equal", 33, 35),
    Sketcher.Constraint("Equal", 35, 37),
    Sketcher.Constraint("Equal", 17, 39),
    Sketcher.Constraint("Equal", 37, 41),
    Sketcher.Constraint("Equal", 41, 43),
    Sketcher.Constraint("Equal", 43, 45),
    Sketcher.Constraint("Equal", 31, 47),
    Sketcher.Constraint("Equal", 7, 49),
    Sketcher.Constraint("Equal", 49, 51),
    Sketcher.Constraint("Equal", 47, 53),
    Sketcher.Constraint("Equal", 45, 55),
    Sketcher.Constraint("Equal", 55, 57),
    Sketcher.Constraint("Equal", 57, 59),
    Sketcher.Constraint("Equal", 39, 61),
    Sketcher.Constraint("Equal", 59, 63),
    Sketcher.Constraint("Equal", 63, 65),
    Sketcher.Constraint("Equal", 65, 67),
    Sketcher.Constraint("Equal", 53, 69),
    Sketcher.Constraint("Equal", 29, 71),
    Sketcher.Constraint("Equal", 71, 73),
    Sketcher.Constraint("Equal", 69, 75),
    Sketcher.Constraint("Equal", 67, 77),
    Sketcher.Constraint("Equal", 77, 79),
    Sketcher.Constraint("Equal", 79, 81),
    Sketcher.Constraint("Equal", 61, 83),
    Sketcher.Constraint("Equal", 81, 85),
    Sketcher.Constraint("Equal", 85, 87),
    Sketcher.Constraint("Symmetric", 1, 3, 45, 3, -1, 1),
    Sketcher.Constraint("Symmetric", 5, 3, 49, 3, -1, 1),
    Sketcher.Constraint("Symmetric", 9, 3, 53, 3, -1, 1),
    Sketcher.Constraint("Symmetric", 13, 3, 57, 3, -1, 1),
    Sketcher.Constraint("Symmetric", 17, 3, 61, 3, -1, 1),
    Sketcher.Constraint("Symmetric", 27, 3, 71, 3, -1, 1),
    Sketcher.Constraint("Symmetric", 31, 3, 75, 3, -1, 1),
    Sketcher.Constraint("Symmetric", 41, 3, 85, 3, -1, 1),
    Sketcher.Constraint("Symmetric", 3, 3, 9, 3, -2),
    Sketcher.Constraint("Symmetric", 43, 3, 57, 3, -2),
    Sketcher.Constraint("Symmetric", 39, 3, 61, 3, -2),
    Sketcher.Constraint("Symmetric", 23, 3, 77, 3, -2),
    Sketcher.Constraint("Symmetric", 48, 2, 51, 1, -2),
    Sketcher.Constraint("Symmetric", 29, 1, 70, 2, -2),
    Sketcher.Constraint("Symmetric", 26, 2, 73, 1, -2),
    Sketcher.Constraint("Symmetric", 21, 3, 35, 3, -1),
    Sketcher.Constraint("Perpendicular", 4, 8),
    Sketcher.Constraint("Parallel", 8, 26),
    Sketcher.Constraint("Perpendicular", 26, 30),
    Sketcher.Constraint("Horizontal", 78, 2, 81, 2),
    Sketcher.Constraint("Vertical", 63, 2, 80, 2),
    Sketcher.Constraint("Vertical", 62, 2, 81, 2),
    Sketcher.Constraint("Equal", 60, 18),
    Sketcher.Constraint("Diameter", 88, 6.8),
    Sketcher.Constraint("Angle", 68, Q("-2 deg")),
    Sketcher.Constraint("Radius", 1, 1.57),
    Sketcher.Constraint("Radius", 3, 0.76),
    Sketcher.Constraint("Radius", 17, 3.17),
    Sketcher.Constraint("Radius", 27, 4.75),
    Sketcher.Constraint("DistanceX", 16, 1, 16, 2, 11.2),
    Sketcher.Constraint("DistanceY", 15, 2, -1, 1, 20.0),
    Sketcher.Constraint("DistanceX", -1, 1, 17, 2, 20.0),
    Sketcher.Constraint("DistanceX", 64, 1, 64, 2, 1.18),
    Sketcher.Constraint("DistanceX", 0, 2, 0, 1, 3.085),
    Sketcher.Constraint("Radius", 5, 4.864551),
    Sketcher.Constraint("DistanceY", 22, 2, 22, 1, 3.085399),
    Sketcher.Constraint("DistanceX", -1, 1, 27, 3, 12.435),
    Sketcher.Constraint("DistanceY", 5, 1, -1, 1, 7.685),
    Sketcher.Constraint("DistanceY", -1, 1, 68, 2, 10.033001),
    Sketcher.Constraint("DistanceX", 6, 1, 6, 2, 5.554671),
    Sketcher.Constraint("DistanceX", 24, 2, 24, 1, 0.489942),
    Sketcher.Constraint("DistanceY", 2, 1, 2, 2, 0.462111),
    Sketcher.Constraint("DistanceY", 28, 1, 28, 2, 5.001569),
    Sketcher.Constraint("DistanceY", 62, 2, 62, 1, 11.257021),
    Sketcher.Constraint("DistanceY", 78, 1, 78, 2, 2.95748),
    Sketcher.Constraint("DistanceY", 82, 2, 82, 1, 11.260449),
    Sketcher.Constraint("DistanceX", 68, 2, -1, 1, 13.719899),
    Sketcher.Constraint("DistanceX", 20, 2, 20, 1, 1.180004),
    Sketcher.Constraint("DistanceX", 80, 2, 80, 1, 1.181454),
    Sketcher.Constraint("DistanceX", 84, 1, 84, 2, 11.044615),
    Sketcher.Constraint("DistanceX", -1, 1, 25, 3, 13.811732),
])
pad1 = doc.addObject("PartDesign::Pad", "Pad")
body.addObject(pad1)
pad1.Profile = sketch1
pad1.Length = 2000

doc.recompute()
